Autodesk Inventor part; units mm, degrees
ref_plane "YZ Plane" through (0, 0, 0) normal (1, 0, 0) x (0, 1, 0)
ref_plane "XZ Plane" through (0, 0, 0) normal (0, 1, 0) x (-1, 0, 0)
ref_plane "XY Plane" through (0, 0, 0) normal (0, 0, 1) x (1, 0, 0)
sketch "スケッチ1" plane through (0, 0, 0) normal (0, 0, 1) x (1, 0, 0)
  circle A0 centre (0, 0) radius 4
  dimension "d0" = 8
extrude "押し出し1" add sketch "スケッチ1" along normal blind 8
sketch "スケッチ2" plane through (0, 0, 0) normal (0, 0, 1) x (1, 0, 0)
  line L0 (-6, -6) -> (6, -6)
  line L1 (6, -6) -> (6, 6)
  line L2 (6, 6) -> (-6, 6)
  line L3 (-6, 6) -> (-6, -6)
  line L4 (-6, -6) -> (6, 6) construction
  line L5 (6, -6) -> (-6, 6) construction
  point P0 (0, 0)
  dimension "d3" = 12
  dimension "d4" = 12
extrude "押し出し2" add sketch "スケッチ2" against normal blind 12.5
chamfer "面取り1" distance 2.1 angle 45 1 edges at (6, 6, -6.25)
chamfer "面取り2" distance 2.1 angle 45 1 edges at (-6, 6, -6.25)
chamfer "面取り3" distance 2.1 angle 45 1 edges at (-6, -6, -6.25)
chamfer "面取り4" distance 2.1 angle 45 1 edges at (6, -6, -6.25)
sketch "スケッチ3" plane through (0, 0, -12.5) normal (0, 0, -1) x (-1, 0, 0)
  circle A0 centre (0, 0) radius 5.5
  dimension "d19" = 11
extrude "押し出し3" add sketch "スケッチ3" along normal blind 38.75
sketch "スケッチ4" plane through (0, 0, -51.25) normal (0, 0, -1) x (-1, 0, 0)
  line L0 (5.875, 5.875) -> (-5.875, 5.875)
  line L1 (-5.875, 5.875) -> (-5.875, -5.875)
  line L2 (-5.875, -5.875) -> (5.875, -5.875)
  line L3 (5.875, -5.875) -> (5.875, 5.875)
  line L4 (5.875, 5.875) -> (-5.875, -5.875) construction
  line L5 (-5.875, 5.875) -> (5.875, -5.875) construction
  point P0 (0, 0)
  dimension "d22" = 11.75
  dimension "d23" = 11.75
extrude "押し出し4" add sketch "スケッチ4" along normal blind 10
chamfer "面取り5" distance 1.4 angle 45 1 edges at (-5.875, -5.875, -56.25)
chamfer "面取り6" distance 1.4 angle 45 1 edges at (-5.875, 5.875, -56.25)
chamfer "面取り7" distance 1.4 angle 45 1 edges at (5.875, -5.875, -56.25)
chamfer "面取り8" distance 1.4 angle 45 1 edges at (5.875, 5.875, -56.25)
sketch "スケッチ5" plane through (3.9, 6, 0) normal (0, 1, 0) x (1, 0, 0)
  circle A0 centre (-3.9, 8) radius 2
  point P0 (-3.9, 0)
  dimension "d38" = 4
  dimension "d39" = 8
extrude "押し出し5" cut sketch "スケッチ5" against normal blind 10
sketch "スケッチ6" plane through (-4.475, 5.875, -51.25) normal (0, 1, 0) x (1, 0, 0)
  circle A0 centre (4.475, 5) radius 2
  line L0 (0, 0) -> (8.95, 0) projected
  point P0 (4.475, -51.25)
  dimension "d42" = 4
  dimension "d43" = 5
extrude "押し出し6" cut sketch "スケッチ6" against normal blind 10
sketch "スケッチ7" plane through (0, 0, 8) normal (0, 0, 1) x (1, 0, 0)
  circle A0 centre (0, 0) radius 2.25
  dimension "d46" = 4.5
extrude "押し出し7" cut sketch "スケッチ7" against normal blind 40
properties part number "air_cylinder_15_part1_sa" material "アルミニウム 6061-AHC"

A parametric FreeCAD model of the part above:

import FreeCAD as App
import Part
import Sketcher

V = App.Vector
Q = App.Units.Quantity


def edges_at(feature, points):
    """Names of the edges that pass closest to the given points."""
    edges = feature.Shape.Edges
    near = lambda p: min(range(len(edges)), key=lambda i: edges[i].distToShape(Part.Vertex(*p))[0])
    return sorted({f"Edge{near(p) + 1}" for p in points})


def add_polygon(sketch, points):
    """Adds a closed chain of lines whose ends are joined by coincident constraints."""
    first, n = sketch.GeometryCount, len(points)
    for a, b in zip(points, points[1:] + points[:1]):
        sketch.addGeometry(Part.LineSegment(App.Vector(*a, 0), App.Vector(*b, 0)), False)
    for i in range(n):
        sketch.addConstraint(Sketcher.Constraint("Coincident", first + i, 2, first + (i + 1) % n, 1))

doc = App.newDocument("Part")
params = doc.addObject("Spreadsheet::Sheet", "Params")
for row, (alias, value) in enumerate([
    ("sketch1_diameter", "8 mm"),
    ("pad1_length", "8 mm"),
    ("sketch2_width", "12 mm"),
    ("pad2_length", "12.5 mm"),
    ("chamfer_size", "2.1 mm"),
    ("chamfer2_size", "2.1 mm"),
    ("chamfer3_size", "2.1 mm"),
    ("chamfer4_size", "2.1 mm"),
    ("sketch3_diameter", "11 mm"),
    ("pad3_length", "38.75 mm"),
    ("sketch4_width", "11.75 mm"),
    ("pad4_length", "10 mm"),
    ("chamfer5_size", "1.4 mm"),
    ("chamfer6_size", "1.4 mm"),
    ("chamfer7_size", "1.4 mm"),
    ("chamfer8_size", "1.4 mm"),
    ("sketch5_diameter", "4 mm"),
    ("pocket1_length", "10 mm"),
    ("sketch6_diameter", "4 mm"),
    ("pocket2_length", "10 mm"),
    ("sketch7_diameter", "4.5 mm"),
    ("pocket3_length", "40 mm"),
], start=1):
    params.set(f"A{row}", alias)
    params.set(f"B{row}", "=" + value)
    params.setAlias(f"B{row}", alias)

body = doc.addObject("PartDesign::Body", "Body")

# Sketch on XY plane
sketch1 = body.newObject("Sketcher::SketchObject", "Sketch")
sketch1.AttachmentSupport = (doc.getObject("XY_Plane"), [""])
sketch1.MapMode = "FlatFace"
sketch1.addGeometry(Part.Circle(V(0, 0, 0), V(0, 0, 1), 4), False)
sketch1.addConstraint(Sketcher.Constraint("Coincident", 0, 3, -1, 1))
sketch1.addConstraint(Sketcher.Constraint("Diameter", 0, Q("8 mm")))
sketch1.setExpression("Constraints[1]", "Params.sketch1_diameter")
pad1 = body.newObject("PartDesign::Pad", "Pad")
pad1.Profile = sketch1
pad1.setExpression("Length", "Params.pad1_length")

# Sketch on XY plane
sketch2 = body.newObject("Sketcher::SketchObject", "Sketch001")
sketch2.AttachmentSupport = (doc.getObject("XY_Plane"), [""])
sketch2.MapMode = "FlatFace"
add_polygon(sketch2, [(-6, 6), (-6, -6), (6, -6), (6, 6)])  # lines 0-3
sketch2.addConstraint(Sketcher.Constraint("Vertical", 0))
sketch2.addConstraint(Sketcher.Constraint("Horizontal", 1))
sketch2.addConstraint(Sketcher.Constraint("Vertical", 2))
sketch2.addConstraint(Sketcher.Constraint("Horizontal", 3))
sketch2.addConstraint(Sketcher.Constraint("Symmetric", 0, 2, 2, 2, -1, 1))
sketch2.addConstraint(Sketcher.Constraint("Equal", 3, 0))
sketch2.addConstraint(Sketcher.Constraint("DistanceX", 1, 1, 1, 2, Q("12 mm")))
sketch2.setExpression("Constraints[10]", "Params.sketch2_width")
pad2 = body.newObject("PartDesign::Pad", "Pad001")
pad2.Profile = sketch2
pad2.setExpression("Length", "Params.pad2_length")
pad2.Reversed = True
doc.recompute()

chamfer = body.newObject("PartDesign::Chamfer", "Chamfer")
chamfer.Base = (pad2, edges_at(pad2, [(6, 6, -6.25)]))
chamfer.setExpression("Size", "Params.chamfer_size")
doc.recompute()

chamfer2 = body.newObject("PartDesign::Chamfer", "Chamfer001")
chamfer2.Base = (chamfer, edges_at(chamfer, [(-6, 6, -6.25)]))
chamfer2.setExpression("Size", "Params.chamfer2_size")
doc.recompute()

chamfer3 = body.newObject("PartDesign::Chamfer", "Chamfer002")
chamfer3.Base = (chamfer2, edges_at(chamfer2, [(-6, -6, -6.25)]))
chamfer3.setExpression("Size", "Params.chamfer3_size")
doc.recompute()

chamfer4 = body.newObject("PartDesign::Chamfer", "Chamfer003")
chamfer4.Base = (chamfer3, edges_at(chamfer3, [(6, -6, -6.25)]))
chamfer4.setExpression("Size", "Params.chamfer4_size")

# Sketch on XY plane
sketch3 = body.newObject("Sketcher::SketchObject", "Sketch002")
sketch3.AttachmentSupport = (doc.getObject("XY_Plane"), [""])
sketch3.MapMode = "FlatFace"
sketch3.AttachmentOffset = App.Placement(V(0, 0, -12.5), App.Rotation())
sketch3.addGeometry(Part.Circle(V(0, 0, 0), V(0, 0, 1), 5.5), False)
sketch3.addConstraint(Sketcher.Constraint("Coincident", 0, 3, -1, 1))
sketch3.addConstraint(Sketcher.Constraint("Diameter", 0, Q("11 mm")))
sketch3.setExpression("Constraints[1]", "Params.sketch3_diameter")
pad3 = body.newObject("PartDesign::Pad", "Pad002")
pad3.Profile = sketch3
pad3.setExpression("Length", "Params.pad3_length")
pad3.Reversed = True

# Sketch on XY plane
sketch4 = body.newObject("Sketcher::SketchObject", "Sketch003")
sketch4.AttachmentSupport = (doc.getObject("XY_Plane"), [""])
sketch4.MapMode = "FlatFace"
sketch4.AttachmentOffset = App.Placement(V(0, 0, -51.25), App.Rotation())
add_polygon(sketch4, [(-5.875, -5.875), (-5.875, 5.875), (5.875, 5.875), (5.875, -5.875)])  # lines 0-3
sketch4.addConstraint(Sketcher.Constraint("Vertical", 0))
sketch4.addConstraint(Sketcher.Constraint("Horizontal", 1))
sketch4.addConstraint(Sketcher.Constraint("Vertical", 2))
sketch4.addConstraint(Sketcher.Constraint("Horizontal", 3))
sketch4.addConstraint(Sketcher.Constraint("Symmetric", 0, 2, 2, 2, -1, 1))
sketch4.addConstraint(Sketcher.Constraint("Equal", 3, 0))
sketch4.addConstraint(Sketcher.Constraint("DistanceX", 1, 1, 1, 2, Q("11.75 mm")))
sketch4.setExpression("Constraints[10]", "Params.sketch4_width")
pad4 = body.newObject("PartDesign::Pad", "Pad003")
pad4.Profile = sketch4
pad4.setExpression("Length", "Params.pad4_length")
pad4.Reversed = True
doc.recompute()

chamfer5 = body.newObject("PartDesign::Chamfer", "Chamfer004")
chamfer5.Base = (pad4, edges_at(pad4, [(-5.875, -5.875, -56.25)]))
chamfer5.setExpression("Size", "Params.chamfer5_size")
doc.recompute()

chamfer6 = body.newObject("PartDesign::Chamfer", "Chamfer005")
chamfer6.Base = (chamfer5, edges_at(chamfer5, [(-5.875, 5.875, -56.25)]))
chamfer6.setExpression("Size", "Params.chamfer6_size")
doc.recompute()

chamfer7 = body.newObject("PartDesign::Chamfer", "Chamfer006")
chamfer7.Base = (chamfer6, edges_at(chamfer6, [(5.875, -5.875, -56.25)]))
chamfer7.setExpression("Size", "Params.chamfer7_size")
doc.recompute()

chamfer8 = body.newObject("PartDesign::Chamfer", "Chamfer007")
chamfer8.Base = (chamfer7, edges_at(chamfer7, [(5.875, 5.875, -56.25)]))
chamfer8.setExpression("Size", "Params.chamfer8_size")

# Sketch on XZ plane
sketch5 = body.newObject("Sketcher::SketchObject", "Sketch004")
sketch5.AttachmentSupport = (doc.getObject("XZ_Plane"), [""])
sketch5.MapMode = "FlatFace"
sketch5.AttachmentOffset = App.Placement(V(0, 0, -6), App.Rotation())
sketch5.addGeometry(Part.Circle(V(0, -8, 0), V(0, 0, 1), 2), False)
sketch5.addConstraint(Sketcher.Constraint("PointOnObject", 0, 3, -2))
sketch5.addConstraint(Sketcher.Constraint("Diameter", 0, Q("4 mm")))
sketch5.addConstraint(Sketcher.Constraint("DistanceY", 0, 3, -1, 1, Q("8 mm")))
sketch5.setExpression("Constraints[1]", "Params.sketch5_diameter")
pocket1 = body.newObject("PartDesign::Pocket", "Pocket")
pocket1.Profile = sketch5
pocket1.setExpression("Length", "Params.pocket1_length")
pocket1.Reversed = True

# Sketch on XZ plane
sketch6 = body.newObject("Sketcher::SketchObject", "Sketch005")
sketch6.AttachmentSupport = (doc.getObject("XZ_Plane"), [""])
sketch6.MapMode = "FlatFace"
sketch6.AttachmentOffset = App.Placement(V(0, 0, -5.875), App.Rotation())
sketch6.addGeometry(Part.Circle(V(0, -56.25, 0), V(0, 0, 1), 2), False)
sketch6.addConstraint(Sketcher.Constraint("PointOnObject", 0, 3, -2))
sketch6.addConstraint(Sketcher.Constraint("Diameter", 0, Q("4 mm")))
sketch6.addConstraint(Sketcher.Constraint("DistanceY", 0, 3, -1, 1, Q("56.25 mm")))
sketch6.setExpression("Constraints[1]", "Params.sketch6_diameter")
pocket2 = body.newObject("PartDesign::Pocket", "Pocket001")
pocket2.Profile = sketch6
pocket2.setExpression("Length", "Params.pocket2_length")
pocket2.Reversed = True

# Sketch on XY plane
sketch7 = body.newObject("Sketcher::SketchObject", "Sketch006")
sketch7.AttachmentSupport = (doc.getObject("XY_Plane"), [""])
sketch7.MapMode = "FlatFace"
sketch7.AttachmentOffset = App.Placement(V(0, 0, 8), App.Rotation())
sketch7.addGeometry(Part.Circle(V(0, 0, 0), V(0, 0, 1), 2.25), False)
sketch7.addConstraint(Sketcher.Constraint("Coincident", 0, 3, -1, 1))
sketch7.addConstraint(Sketcher.Constraint("Diameter", 0, Q("4.5 mm")))
sketch7.setExpression("Constraints[1]", "Params.sketch7_diameter")
pocket3 = body.newObject("PartDesign::Pocket", "Pocket002")
pocket3.Profile = sketch7
pocket3.setExpression("Length", "Params.pocket3_length")

doc.recompute()
